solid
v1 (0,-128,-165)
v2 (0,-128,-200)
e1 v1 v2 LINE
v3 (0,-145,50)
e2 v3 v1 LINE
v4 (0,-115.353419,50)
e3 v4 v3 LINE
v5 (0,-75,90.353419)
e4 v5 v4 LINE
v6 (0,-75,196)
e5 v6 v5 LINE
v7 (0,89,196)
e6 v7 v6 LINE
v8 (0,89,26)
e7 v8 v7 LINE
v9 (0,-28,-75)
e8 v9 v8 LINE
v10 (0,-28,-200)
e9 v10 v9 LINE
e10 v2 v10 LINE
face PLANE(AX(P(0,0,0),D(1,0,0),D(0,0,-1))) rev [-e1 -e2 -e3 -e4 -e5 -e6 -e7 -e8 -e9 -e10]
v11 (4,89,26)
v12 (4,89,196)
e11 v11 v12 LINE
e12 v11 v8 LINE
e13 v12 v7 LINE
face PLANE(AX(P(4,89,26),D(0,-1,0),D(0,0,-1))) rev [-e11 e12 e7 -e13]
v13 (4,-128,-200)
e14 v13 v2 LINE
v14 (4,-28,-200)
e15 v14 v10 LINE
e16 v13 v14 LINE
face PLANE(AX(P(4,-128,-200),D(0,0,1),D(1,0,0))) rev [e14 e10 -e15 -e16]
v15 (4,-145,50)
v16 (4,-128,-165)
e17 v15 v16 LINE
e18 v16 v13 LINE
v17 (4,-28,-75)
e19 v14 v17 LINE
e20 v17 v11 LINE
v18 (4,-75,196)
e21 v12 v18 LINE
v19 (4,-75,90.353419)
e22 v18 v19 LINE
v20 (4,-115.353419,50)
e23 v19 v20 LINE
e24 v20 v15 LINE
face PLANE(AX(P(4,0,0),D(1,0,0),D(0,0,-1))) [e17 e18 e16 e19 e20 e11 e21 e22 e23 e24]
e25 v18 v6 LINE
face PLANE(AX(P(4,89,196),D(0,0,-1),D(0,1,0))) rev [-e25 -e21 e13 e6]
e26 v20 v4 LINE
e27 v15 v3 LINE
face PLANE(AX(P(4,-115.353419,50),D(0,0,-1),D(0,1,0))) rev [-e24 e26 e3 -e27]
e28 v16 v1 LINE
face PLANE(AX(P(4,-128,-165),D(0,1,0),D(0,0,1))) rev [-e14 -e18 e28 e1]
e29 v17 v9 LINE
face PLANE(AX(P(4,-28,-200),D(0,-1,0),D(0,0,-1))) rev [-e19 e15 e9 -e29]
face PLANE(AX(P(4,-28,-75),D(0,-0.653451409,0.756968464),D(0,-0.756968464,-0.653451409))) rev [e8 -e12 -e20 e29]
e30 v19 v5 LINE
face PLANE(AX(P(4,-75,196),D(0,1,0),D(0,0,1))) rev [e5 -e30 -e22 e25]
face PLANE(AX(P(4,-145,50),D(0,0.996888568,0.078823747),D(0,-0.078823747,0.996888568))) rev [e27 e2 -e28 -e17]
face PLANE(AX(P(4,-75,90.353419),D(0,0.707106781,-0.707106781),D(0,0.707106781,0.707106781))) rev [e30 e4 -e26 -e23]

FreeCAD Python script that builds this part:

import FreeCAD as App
import Part
import Sketcher
from FreeCAD import Vector
Q = App.Units.Quantity


def add_polygon(sketch, points):
    """Adds a closed chain of lines whose ends are joined by coincident constraints."""
    first, n = sketch.GeometryCount, len(points)
    for a, b in zip(points, points[1:] + points[:1]):
        sketch.addGeometry(Part.LineSegment(App.Vector(*a, 0), App.Vector(*b, 0)), False)
    for i in range(n):
        sketch.addConstraint(Sketcher.Constraint("Coincident", first + i, 2, first + (i + 1) % n, 1))

doc = App.newDocument("Part")
params = doc.addObject("Spreadsheet::Sheet", "Params")
for row, (alias, value) in enumerate([
    ("sketch1_width", "100 mm"),
    ("sketch1_width2", "164 mm"),
    ("sketch1_height", "35 mm"),
    ("sketch1_height2", "125 mm"),
    ("sketch1_height3", "170 mm"),
    ("pad1_length", "4 mm"),
], start=1):
    params.set(f"A{row}", alias)
    params.set(f"B{row}", "=" + value)
    params.setAlias(f"B{row}", alias)

body = doc.addObject("PartDesign::Body", "Body")

# Sketch on YZ plane
sketch1 = doc.addObject("Sketcher::SketchObject", "Sketch")
body.addObject(sketch1)
sketch1.AttachmentSupport = (doc.YZ_Plane, [""])
sketch1.MapMode = "FlatFace"
add_polygon(sketch1, [(-75, 196), (-75, 90), (-115, 50), (-145, 50), (-128, -165), (-128, -200), (-28, -200), (-28, -75), (89, 26), (89, 196)])  # lines 0-9
sketch1.addConstraint([
    Sketcher.Constraint("Vertical", 0),
    Sketcher.Constraint("Horizontal", 2),
    Sketcher.Constraint("Vertical", 4),
    Sketcher.Constraint("Horizontal", 5),
    Sketcher.Constraint("Vertical", 6),
    Sketcher.Constraint("Vertical", 8),
    Sketcher.Constraint("Horizontal", 9),
    Sketcher.Constraint("DistanceX", 5, 1, 5, 2, 100.0),
    Sketcher.Constraint("DistanceX", 9, 2, 9, 1, 164.0),
    Sketcher.Constraint("DistanceY", 4, 2, 4, 1, 35.0),
    Sketcher.Constraint("DistanceY", 6, 1, 6, 2, 125.0),
    Sketcher.Constraint("DistanceY", 8, 1, 8, 2, 170.0),
    Sketcher.Constraint("Angle", 1, Q("-135 deg")),
    Sketcher.Constraint("DistanceX", 0, 2, -1, 1, 75.0),
    Sketcher.Constraint("DistanceY", -1, 1, 1, 2, 50.0),
    Sketcher.Constraint("DistanceX", 2, 2, -1, 1, 145.0),
    Sketcher.Constraint("DistanceX", 3, 2, -1, 1, 128.0),
    Sketcher.Constraint("DistanceY", 3, 2, -1, 1, 165.0),
    Sketcher.Constraint("DistanceY", -1, 1, 7, 2, 26.0),
    Sketcher.Constraint("DistanceX", 2, 2, 2, 1, 29.646581),
])
sketch1.setExpression("Constraints[17]", "Params.sketch1_width")
sketch1.setExpression("Constraints[18]", "Params.sketch1_width2")
sketch1.setExpression("Constraints[19]", "Params.sketch1_height")
sketch1.setExpression("Constraints[20]", "Params.sketch1_height2")
sketch1.setExpression("Constraints[21]", "Params.sketch1_height3")
pad1 = doc.addObject("PartDesign::Pad", "Pad")
body.addObject(pad1)
pad1.Profile = sketch1
pad1.setExpression("Length", "Params.pad1_length")

doc.recompute()
